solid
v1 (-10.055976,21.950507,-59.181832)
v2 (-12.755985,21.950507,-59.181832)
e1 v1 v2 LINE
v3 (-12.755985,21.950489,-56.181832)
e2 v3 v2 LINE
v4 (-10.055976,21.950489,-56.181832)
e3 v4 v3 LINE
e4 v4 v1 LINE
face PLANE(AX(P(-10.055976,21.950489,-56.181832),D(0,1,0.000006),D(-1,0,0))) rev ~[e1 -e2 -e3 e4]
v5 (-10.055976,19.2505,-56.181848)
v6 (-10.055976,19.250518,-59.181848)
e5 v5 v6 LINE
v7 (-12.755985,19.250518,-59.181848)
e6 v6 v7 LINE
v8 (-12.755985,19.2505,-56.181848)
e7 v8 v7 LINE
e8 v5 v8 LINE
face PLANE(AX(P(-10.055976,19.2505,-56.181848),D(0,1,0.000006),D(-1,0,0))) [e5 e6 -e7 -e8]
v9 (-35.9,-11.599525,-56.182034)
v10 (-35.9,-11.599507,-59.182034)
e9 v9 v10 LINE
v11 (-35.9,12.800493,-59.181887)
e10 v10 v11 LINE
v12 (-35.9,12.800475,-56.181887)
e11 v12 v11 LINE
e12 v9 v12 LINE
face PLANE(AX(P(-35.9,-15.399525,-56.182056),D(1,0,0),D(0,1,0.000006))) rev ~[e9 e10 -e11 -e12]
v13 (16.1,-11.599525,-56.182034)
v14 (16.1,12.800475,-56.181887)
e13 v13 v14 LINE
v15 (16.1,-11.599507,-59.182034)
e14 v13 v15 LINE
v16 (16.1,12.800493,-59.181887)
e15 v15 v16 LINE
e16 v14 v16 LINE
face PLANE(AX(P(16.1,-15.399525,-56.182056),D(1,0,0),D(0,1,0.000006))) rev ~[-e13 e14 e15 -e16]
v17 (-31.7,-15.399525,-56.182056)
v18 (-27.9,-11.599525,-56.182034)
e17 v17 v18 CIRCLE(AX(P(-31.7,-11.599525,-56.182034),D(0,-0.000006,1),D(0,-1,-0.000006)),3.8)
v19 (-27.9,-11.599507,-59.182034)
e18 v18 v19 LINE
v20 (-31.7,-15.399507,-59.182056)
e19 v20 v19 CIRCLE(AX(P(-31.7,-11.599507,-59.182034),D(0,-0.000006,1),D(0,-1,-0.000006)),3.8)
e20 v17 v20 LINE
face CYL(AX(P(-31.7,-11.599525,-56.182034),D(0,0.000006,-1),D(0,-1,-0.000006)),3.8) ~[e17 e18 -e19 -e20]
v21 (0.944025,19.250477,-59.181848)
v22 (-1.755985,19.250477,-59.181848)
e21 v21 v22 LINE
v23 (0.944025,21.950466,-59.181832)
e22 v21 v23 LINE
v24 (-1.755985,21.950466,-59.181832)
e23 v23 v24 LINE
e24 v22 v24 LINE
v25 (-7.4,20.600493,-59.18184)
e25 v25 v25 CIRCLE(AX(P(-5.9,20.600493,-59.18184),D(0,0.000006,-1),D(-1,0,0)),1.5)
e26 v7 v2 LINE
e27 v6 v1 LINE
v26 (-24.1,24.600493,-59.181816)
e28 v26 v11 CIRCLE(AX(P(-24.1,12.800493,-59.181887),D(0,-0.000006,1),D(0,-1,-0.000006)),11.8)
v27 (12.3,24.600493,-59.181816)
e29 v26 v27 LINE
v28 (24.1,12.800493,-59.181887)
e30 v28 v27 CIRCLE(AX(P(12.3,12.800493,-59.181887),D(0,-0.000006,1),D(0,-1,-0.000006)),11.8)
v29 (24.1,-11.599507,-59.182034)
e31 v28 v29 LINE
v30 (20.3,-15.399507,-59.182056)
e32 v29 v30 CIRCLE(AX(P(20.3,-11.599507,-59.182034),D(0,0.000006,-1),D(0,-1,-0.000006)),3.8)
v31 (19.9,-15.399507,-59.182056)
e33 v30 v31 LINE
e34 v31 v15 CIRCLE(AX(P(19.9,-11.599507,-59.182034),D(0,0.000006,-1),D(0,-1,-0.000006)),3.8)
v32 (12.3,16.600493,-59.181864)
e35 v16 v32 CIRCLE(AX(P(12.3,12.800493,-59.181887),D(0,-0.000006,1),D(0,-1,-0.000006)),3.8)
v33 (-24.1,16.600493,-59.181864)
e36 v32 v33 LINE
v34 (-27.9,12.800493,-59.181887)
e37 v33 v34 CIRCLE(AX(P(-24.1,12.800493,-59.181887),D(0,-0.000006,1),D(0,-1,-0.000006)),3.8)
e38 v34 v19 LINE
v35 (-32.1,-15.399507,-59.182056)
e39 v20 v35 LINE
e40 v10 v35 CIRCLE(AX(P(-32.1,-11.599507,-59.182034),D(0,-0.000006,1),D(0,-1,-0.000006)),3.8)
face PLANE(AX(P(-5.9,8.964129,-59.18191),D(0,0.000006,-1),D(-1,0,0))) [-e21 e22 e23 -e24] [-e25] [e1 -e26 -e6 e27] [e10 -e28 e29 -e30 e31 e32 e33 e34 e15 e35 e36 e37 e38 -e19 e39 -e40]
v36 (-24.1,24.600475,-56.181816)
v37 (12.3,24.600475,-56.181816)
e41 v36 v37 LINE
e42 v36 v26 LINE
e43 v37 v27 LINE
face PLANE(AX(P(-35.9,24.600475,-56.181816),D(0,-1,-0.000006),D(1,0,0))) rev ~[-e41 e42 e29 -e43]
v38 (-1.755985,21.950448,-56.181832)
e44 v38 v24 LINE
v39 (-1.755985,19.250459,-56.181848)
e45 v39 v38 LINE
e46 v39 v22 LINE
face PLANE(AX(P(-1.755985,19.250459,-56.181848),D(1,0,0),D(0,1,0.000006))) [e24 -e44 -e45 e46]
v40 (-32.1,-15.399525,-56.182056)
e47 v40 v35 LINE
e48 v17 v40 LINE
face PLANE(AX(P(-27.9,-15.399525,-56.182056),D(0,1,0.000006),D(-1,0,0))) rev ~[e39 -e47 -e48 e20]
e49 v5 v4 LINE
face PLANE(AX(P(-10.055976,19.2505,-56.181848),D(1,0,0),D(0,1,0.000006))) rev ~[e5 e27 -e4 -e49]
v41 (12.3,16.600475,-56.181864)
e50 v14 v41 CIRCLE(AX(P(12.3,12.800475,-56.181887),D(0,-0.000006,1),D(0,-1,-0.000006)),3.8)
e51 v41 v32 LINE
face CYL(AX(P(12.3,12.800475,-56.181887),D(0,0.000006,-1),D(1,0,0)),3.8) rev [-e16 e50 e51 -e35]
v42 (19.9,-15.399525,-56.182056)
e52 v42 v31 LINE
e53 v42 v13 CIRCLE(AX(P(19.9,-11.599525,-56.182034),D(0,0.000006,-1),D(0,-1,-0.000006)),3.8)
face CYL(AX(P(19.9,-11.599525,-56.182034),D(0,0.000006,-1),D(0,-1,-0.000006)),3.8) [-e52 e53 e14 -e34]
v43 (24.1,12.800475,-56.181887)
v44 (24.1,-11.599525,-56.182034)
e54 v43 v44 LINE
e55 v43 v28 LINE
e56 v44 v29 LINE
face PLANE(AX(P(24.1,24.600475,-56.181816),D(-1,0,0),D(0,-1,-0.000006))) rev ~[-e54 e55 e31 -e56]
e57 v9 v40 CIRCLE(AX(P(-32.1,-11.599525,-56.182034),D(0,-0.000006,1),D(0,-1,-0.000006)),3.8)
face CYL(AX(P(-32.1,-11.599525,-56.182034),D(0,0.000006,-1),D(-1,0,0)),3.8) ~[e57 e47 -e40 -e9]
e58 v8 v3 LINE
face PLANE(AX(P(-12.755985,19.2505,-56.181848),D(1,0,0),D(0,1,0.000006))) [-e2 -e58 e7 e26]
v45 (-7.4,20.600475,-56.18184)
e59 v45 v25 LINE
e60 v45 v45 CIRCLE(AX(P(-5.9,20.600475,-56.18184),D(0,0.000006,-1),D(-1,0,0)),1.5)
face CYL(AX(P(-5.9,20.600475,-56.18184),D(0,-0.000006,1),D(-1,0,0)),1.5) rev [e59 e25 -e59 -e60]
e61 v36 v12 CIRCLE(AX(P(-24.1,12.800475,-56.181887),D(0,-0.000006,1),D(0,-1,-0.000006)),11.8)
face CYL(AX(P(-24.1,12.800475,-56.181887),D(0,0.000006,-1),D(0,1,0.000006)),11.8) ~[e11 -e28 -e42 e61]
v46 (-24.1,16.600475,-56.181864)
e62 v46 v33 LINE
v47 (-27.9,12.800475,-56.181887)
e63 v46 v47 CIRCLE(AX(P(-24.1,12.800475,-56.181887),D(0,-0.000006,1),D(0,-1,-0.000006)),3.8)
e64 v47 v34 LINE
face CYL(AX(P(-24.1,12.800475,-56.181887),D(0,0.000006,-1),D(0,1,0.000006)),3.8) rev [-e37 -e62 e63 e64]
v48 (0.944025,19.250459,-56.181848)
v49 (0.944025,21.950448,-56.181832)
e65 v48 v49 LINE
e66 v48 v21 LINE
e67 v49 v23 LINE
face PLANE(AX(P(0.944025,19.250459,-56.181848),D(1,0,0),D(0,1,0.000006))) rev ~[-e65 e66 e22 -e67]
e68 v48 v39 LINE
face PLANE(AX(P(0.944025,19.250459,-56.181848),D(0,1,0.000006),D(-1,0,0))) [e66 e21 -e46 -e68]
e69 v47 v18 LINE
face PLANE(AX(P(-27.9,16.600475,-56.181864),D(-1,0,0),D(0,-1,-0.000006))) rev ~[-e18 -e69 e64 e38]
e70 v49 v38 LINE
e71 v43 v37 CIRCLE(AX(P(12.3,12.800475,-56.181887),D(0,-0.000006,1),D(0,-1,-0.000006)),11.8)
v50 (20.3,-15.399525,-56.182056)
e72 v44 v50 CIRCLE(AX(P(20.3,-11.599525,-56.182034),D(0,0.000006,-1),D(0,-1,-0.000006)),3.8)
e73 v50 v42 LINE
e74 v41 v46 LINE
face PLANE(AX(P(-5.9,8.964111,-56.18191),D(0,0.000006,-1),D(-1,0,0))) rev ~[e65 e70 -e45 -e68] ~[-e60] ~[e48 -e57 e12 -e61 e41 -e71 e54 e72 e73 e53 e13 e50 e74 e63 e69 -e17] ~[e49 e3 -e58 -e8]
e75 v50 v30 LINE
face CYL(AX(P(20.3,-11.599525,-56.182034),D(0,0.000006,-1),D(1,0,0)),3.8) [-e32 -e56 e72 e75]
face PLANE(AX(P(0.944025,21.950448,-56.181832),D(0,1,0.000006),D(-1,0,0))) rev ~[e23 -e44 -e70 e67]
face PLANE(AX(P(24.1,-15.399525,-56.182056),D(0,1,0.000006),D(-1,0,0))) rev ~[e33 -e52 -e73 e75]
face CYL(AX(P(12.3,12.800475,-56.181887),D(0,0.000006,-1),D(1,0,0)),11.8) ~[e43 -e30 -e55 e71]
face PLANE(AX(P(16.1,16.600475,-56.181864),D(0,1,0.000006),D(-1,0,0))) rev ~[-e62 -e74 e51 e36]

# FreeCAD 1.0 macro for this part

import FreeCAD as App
import Part
import Sketcher
from FreeCAD import Vector
Q = App.Units.Quantity


def edges_at(feature, points):
    """Names of the edges that pass closest to the given points."""
    edges = feature.Shape.Edges
    near = lambda p: min(range(len(edges)), key=lambda i: edges[i].distToShape(Part.Vertex(*p))[0])
    return sorted({f"Edge{near(p) + 1}" for p in points})


def add_polygon(sketch, points):
    """Adds a closed chain of lines whose ends are joined by coincident constraints."""
    first, n = sketch.GeometryCount, len(points)
    for a, b in zip(points, points[1:] + points[:1]):
        sketch.addGeometry(Part.LineSegment(App.Vector(*a, 0), App.Vector(*b, 0)), False)
    for i in range(n):
        sketch.addConstraint(Sketcher.Constraint("Coincident", first + i, 2, first + (i + 1) % n, 1))

doc = App.newDocument("Part")
body = doc.addObject("PartDesign::Body", "Body")

# Sketch on XY plane
sketch1 = doc.addObject("Sketcher::SketchObject", "Sketch")
body.addObject(sketch1)
sketch1.AttachmentSupport = (doc.XY_Plane, [""])
sketch1.MapMode = "FlatFace"
sketch1.AttachmentOffset = App.Placement(Vector(0, 0, 2.818036), App.Rotation())
add_polygon(sketch1, [(-30, -24.6), (-30, 15.4), (-22, 15.4), (-22, -16.6), (22, -16.6), (22, 15.4), (30, 15.4), (30, -24.6)])  # lines 0-7
add_polygon(sketch1, [(-4.1, -19.3), (-6.8, -19.3), (-6.8, -22), (-4.1, -22)])  # lines 8-11
sketch1.addGeometry(Part.Circle(Vector(0, -20.6, 0), Vector(0, 0, 1), 1.5), False)  # 12
add_polygon(sketch1, [(6.9, -19.3), (4.2, -19.3), (4.2, -22), (6.9, -22)])  # lines 13-16
sketch1.addConstraint([
    Sketcher.Constraint("Vertical", 0),
    Sketcher.Constraint("Horizontal", 1),
    Sketcher.Constraint("Vertical", 2),
    Sketcher.Constraint("Horizontal", 3),
    Sketcher.Constraint("Vertical", 4),
    Sketcher.Constraint("Horizontal", 5),
    Sketcher.Constraint("Vertical", 6),
    Sketcher.Constraint("Horizontal", 7),
    Sketcher.Constraint("Horizontal", 8),
    Sketcher.Constraint("Vertical", 9),
    Sketcher.Constraint("Horizontal", 10),
    Sketcher.Constraint("Vertical", 11),
    Sketcher.Constraint("Horizontal", 13),
    Sketcher.Constraint("Vertical", 14),
    Sketcher.Constraint("Horizontal", 15),
    Sketcher.Constraint("Vertical", 16),
    Sketcher.Constraint("Symmetric", 1, 2, 4, 2, -2),
    Sketcher.Constraint("PointOnObject", 12, 3, -2),
    Sketcher.Constraint("Equal", 1, 5),
    Sketcher.Constraint("Equal", 10, 13),
    Sketcher.Constraint("Equal", 11, 14),
    Sketcher.Constraint("Diameter", 12, Q("3 mm")),
    Sketcher.Constraint("DistanceX", 1, 1, 1, 2, Q("8 mm")),
    Sketcher.Constraint("DistanceX", 3, 1, 3, 2, Q("44 mm")),
    Sketcher.Constraint("DistanceY", 0, 1, 0, 2, Q("40 mm")),
    Sketcher.Constraint("DistanceY", 2, 2, 2, 1, Q("32 mm")),
    Sketcher.Constraint("DistanceY", 12, 3, 0, 2, Q("36 mm")),
    Sketcher.Constraint("DistanceX", 8, 2, 13, 2, Q("11 mm")),
    Sketcher.Constraint("DistanceX", 8, 2, 8, 1, Q("2.700009 mm")),
    Sketcher.Constraint("DistanceY", 9, 2, 9, 1, Q("2.699989 mm")),
    Sketcher.Constraint("DistanceY", 13, 2, -1, 1, Q("19.250501 mm")),
    Sketcher.Constraint("DistanceY", 8, 2, -1, 1, Q("19.25046 mm")),
    Sketcher.Constraint("DistanceY", 12, 3, -1, 1, Q("20.600475 mm")),
    Sketcher.Constraint("DistanceX", 8, 2, -1, 1, Q("6.844024 mm")),
])
pad1 = doc.addObject("PartDesign::Pad", "Pad")
body.addObject(pad1)
pad1.Profile = sketch1
pad1.Length = 3
pad1.Reversed = True
doc.recompute()

fillet = doc.addObject("PartDesign::Fillet", "Fillet")
body.addObject(fillet)
fillet.Base = (pad1, edges_at(pad1, [
    (-30, 15.4, 1.318),
    (-22, 15.4, 1.318),
    (22, 15.4, 1.318),
    (30, 15.4, 1.318),
    (-22, -16.6, 1.318),
    (22, -16.6, 1.318),
]))
fillet.Radius = 3.8
doc.recompute()

fillet2 = doc.addObject("PartDesign::Fillet", "Fillet001")
body.addObject(fillet2)
fillet2.Base = (fillet, edges_at(fillet, [(30, -24.6, 1.318), (-30, -24.6, 1.318)]))
fillet2.Radius = 11.8
body2 = doc.addObject("PartDesign::Body", "Body001")
doc.recompute()

body.Placement = App.Placement(Vector(12.1, 0, -69.4), App.Rotation(Vector(0, 0, 1), 0))
boolean = doc.addObject("PartDesign::Boolean", "Boolean")
body2.addObject(boolean)
boolean.Type = "Fuse"
boolean.addObjects([body])
body3 = doc.addObject("PartDesign::Body", "Body002")
doc.recompute()

body2.Placement = App.Placement(Vector(6.2, 0, 10.4), App.Rotation(Vector(0, 0, 1), 180))
boolean2 = doc.addObject("PartDesign::Boolean", "Boolean001")
body3.addObject(boolean2)
boolean2.Type = "Fuse"
boolean2.addObjects([body2])

doc.recompute()
